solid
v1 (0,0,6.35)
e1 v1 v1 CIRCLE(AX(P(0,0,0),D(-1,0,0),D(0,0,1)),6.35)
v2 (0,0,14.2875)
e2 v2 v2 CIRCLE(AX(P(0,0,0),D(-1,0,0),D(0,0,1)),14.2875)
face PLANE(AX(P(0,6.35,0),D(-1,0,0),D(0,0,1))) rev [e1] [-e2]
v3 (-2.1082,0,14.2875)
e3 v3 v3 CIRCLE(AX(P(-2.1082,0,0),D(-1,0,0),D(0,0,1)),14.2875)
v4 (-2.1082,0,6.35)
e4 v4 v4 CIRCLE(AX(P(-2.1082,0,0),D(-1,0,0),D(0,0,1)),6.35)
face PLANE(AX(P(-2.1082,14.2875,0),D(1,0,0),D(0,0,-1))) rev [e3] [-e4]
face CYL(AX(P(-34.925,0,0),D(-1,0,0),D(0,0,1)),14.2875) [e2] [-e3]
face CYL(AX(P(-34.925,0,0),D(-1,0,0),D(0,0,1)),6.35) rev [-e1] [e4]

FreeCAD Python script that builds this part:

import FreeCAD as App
import Part
import Sketcher
Q = App.Units.Quantity


def add_polygon(sketch, points):
    """Adds a closed chain of lines whose ends are joined by coincident constraints."""
    first, n = sketch.GeometryCount, len(points)
    for a, b in zip(points, points[1:] + points[:1]):
        sketch.addGeometry(Part.LineSegment(App.Vector(*a, 0), App.Vector(*b, 0)), False)
    for i in range(n):
        sketch.addConstraint(Sketcher.Constraint("Coincident", first + i, 2, first + (i + 1) % n, 1))

doc = App.newDocument("Part")
body = doc.addObject("PartDesign::Body", "Body")

sketch1 = doc.addObject("Sketcher::SketchObject", "Sketch")
body.addObject(sketch1)
sketch1.AttachmentSupport = (doc.XY_Plane, [""])
sketch1.MapMode = "FlatFace"
add_polygon(sketch1, [(-2.1, 14.3), (-2.1, 6.3), (0, 6.3), (0, 14.3)])
sketch1.addConstraint([
    Sketcher.Constraint("Vertical", 0),
    Sketcher.Constraint("Horizontal", 1),
    Sketcher.Constraint("Vertical", 2),
    Sketcher.Constraint("Horizontal", 3),
    Sketcher.Constraint("PointOnObject", 1, 2, -2),
    Sketcher.Constraint("DistanceX", 1, 1, 1, 2, Q("0.083 in")),
    Sketcher.Constraint("DistanceY", 0, 2, 0, 1, Q("0.3125 in")),
    Sketcher.Constraint("DistanceY", -1, 1, 0, 2, Q("0.25 in")),
])
revolution = doc.addObject("PartDesign::Revolution", "Revolution")
body.addObject(revolution)
revolution.Profile = sketch1
revolution.ReferenceAxis = (sketch1, ["H_Axis"])
revolution.Angle = 360

doc.recompute()
